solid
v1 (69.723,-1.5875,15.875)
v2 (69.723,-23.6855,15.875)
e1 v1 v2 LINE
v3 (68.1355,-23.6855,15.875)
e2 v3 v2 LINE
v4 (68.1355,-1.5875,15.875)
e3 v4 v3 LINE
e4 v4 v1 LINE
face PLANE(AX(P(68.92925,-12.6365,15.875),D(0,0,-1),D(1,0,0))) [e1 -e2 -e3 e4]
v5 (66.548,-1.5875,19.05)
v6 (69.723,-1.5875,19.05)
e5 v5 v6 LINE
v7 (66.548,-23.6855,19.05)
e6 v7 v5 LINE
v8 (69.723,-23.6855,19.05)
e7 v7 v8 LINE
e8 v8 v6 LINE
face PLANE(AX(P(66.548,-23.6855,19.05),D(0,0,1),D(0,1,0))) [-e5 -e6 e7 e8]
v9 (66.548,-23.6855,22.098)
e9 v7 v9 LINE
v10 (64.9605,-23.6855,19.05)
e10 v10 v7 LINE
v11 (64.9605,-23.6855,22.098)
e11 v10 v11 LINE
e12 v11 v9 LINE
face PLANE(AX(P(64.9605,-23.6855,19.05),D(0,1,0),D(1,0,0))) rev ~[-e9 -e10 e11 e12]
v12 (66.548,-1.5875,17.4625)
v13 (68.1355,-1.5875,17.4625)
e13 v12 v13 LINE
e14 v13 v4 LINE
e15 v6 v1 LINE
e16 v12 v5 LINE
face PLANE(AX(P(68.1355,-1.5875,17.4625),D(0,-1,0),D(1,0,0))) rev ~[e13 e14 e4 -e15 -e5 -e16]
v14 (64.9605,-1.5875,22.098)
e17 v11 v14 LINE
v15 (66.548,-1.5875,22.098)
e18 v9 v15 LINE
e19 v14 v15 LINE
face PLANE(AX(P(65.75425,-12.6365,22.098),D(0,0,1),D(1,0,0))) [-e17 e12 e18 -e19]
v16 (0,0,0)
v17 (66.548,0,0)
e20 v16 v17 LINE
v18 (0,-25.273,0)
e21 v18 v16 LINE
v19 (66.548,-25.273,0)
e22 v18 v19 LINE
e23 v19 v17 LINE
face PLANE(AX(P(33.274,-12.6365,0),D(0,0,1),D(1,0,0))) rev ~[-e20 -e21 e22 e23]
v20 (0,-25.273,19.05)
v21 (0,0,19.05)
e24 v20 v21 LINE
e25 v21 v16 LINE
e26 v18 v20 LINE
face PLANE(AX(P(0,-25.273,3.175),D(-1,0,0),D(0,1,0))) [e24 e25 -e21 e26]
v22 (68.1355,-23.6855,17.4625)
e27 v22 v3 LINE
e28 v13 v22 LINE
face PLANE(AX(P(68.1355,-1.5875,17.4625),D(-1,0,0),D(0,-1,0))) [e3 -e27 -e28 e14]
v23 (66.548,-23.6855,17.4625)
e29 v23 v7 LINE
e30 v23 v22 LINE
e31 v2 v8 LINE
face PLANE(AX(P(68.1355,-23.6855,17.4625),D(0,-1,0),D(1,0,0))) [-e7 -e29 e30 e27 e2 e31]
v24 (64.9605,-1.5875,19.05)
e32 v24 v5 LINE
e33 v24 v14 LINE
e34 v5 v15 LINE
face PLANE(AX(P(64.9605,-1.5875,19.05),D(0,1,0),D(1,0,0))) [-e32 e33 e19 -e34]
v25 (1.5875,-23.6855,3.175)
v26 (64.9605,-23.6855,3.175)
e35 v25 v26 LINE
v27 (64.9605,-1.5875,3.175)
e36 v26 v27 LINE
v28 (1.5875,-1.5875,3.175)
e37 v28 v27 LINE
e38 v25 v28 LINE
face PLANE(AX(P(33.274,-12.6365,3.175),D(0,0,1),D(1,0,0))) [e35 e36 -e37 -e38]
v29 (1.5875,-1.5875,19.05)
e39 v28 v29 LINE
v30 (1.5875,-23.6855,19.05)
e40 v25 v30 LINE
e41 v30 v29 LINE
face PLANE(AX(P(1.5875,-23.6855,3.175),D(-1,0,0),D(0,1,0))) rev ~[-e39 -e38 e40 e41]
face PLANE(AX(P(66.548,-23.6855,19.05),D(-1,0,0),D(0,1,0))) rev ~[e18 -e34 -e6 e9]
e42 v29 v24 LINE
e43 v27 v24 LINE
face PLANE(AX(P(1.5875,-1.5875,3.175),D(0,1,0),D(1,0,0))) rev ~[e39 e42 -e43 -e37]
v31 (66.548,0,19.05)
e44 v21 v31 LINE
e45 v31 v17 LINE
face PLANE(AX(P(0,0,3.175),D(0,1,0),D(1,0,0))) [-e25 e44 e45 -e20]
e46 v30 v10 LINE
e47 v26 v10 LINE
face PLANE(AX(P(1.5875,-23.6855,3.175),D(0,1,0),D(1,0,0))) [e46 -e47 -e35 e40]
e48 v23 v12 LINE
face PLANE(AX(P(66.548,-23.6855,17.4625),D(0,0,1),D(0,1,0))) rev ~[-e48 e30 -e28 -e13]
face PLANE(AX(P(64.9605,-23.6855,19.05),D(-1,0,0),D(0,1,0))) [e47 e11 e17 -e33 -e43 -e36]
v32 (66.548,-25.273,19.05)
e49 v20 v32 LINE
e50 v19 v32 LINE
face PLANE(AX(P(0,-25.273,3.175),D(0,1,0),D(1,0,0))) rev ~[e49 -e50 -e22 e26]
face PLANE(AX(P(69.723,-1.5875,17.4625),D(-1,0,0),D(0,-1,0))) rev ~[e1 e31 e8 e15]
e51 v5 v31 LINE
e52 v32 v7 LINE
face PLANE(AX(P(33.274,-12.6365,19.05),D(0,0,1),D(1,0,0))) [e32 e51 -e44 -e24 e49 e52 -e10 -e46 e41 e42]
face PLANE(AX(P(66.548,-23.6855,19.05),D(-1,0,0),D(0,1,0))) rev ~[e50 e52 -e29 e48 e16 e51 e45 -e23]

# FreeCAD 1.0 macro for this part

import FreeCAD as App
import Part
import Sketcher
Q = App.Units.Quantity

doc = App.newDocument("Part")
body = doc.addObject("PartDesign::Body", "Body")

sketch1 = doc.addObject("Sketcher::SketchObject", "Sketch")
body.addObject(sketch1)
sketch1.AttachmentSupport = (doc.XY_Plane, [""])
sketch1.MapMode = "FlatFace"
sketch1.addGeometry([
    Part.LineSegment(App.Vector(0, 0, 0), App.Vector(0, -25, 0)),
    Part.LineSegment(App.Vector(0, -25, 0), App.Vector(67, -25, 0)),
    Part.LineSegment(App.Vector(67, -25, 0), App.Vector(67, 0, 0)),
    Part.LineSegment(App.Vector(67, 0, 0), App.Vector(0, 0, 0)),
], False)
sketch1.addConstraint([
    Sketcher.Constraint("Coincident", 0, 2, 1, 1),
    Sketcher.Constraint("Coincident", 1, 2, 2, 1),
    Sketcher.Constraint("Coincident", 2, 2, 3, 1),
    Sketcher.Constraint("Coincident", 3, 2, 0, 1),
    Sketcher.Constraint("Vertical", 0),
    Sketcher.Constraint("Horizontal", 1),
    Sketcher.Constraint("Vertical", 2),
    Sketcher.Constraint("Horizontal", 3),
    Sketcher.Constraint("Coincident", 3, 2, -1, 1),
    Sketcher.Constraint("DistanceX", 1, 1, 1, 2, Q("2.62 in")),
    Sketcher.Constraint("DistanceY", 0, 2, 0, 1, Q("0.995 in")),
])
pad1 = doc.addObject("PartDesign::Pad", "Pad")
body.addObject(pad1)
pad1.Profile = sketch1
pad1.Length = Q("0.125 in")

sketch2 = doc.addObject("Sketcher::SketchObject", "Sketch001")
body.addObject(sketch2)
sketch2.AttachmentSupport = (doc.XY_Plane, [""])
sketch2.MapMode = "FlatFace"
sketch2.AttachmentOffset = App.Placement(App.Vector(0, 0, 0.125 * 25.4), App.Rotation())
sketch2.addGeometry([
    Part.LineSegment(App.Vector(0, 0, 0), App.Vector(0, -25, 0)),
    Part.LineSegment(App.Vector(0, -25, 0), App.Vector(67, -25, 0)),
    Part.LineSegment(App.Vector(67, -25, 0), App.Vector(67, 0, 0)),
    Part.LineSegment(App.Vector(67, 0, 0), App.Vector(0, 0, 0)),
    Part.LineSegment(App.Vector(65, -24, 0), App.Vector(2, -24, 0)),
    Part.LineSegment(App.Vector(2, -24, 0), App.Vector(2, -2, 0)),
    Part.LineSegment(App.Vector(2, -2, 0), App.Vector(65, -2, 0)),
    Part.LineSegment(App.Vector(65, -2, 0), App.Vector(65, -24, 0)),
], False)
sketch2.addConstraint([
    Sketcher.Constraint("Coincident", 0, 2, 1, 1),
    Sketcher.Constraint("Coincident", 1, 2, 2, 1),
    Sketcher.Constraint("Coincident", 2, 2, 3, 1),
    Sketcher.Constraint("Coincident", 3, 2, 0, 1),
    Sketcher.Constraint("Coincident", 4, 2, 5, 1),
    Sketcher.Constraint("Coincident", 5, 2, 6, 1),
    Sketcher.Constraint("Coincident", 6, 2, 7, 1),
    Sketcher.Constraint("Coincident", 7, 2, 4, 1),
    Sketcher.Constraint("Vertical", 0),
    Sketcher.Constraint("Horizontal", 1),
    Sketcher.Constraint("Vertical", 2),
    Sketcher.Constraint("Horizontal", 3),
    Sketcher.Constraint("Horizontal", 4),
    Sketcher.Constraint("Vertical", 5),
    Sketcher.Constraint("Horizontal", 6),
    Sketcher.Constraint("Vertical", 7),
    Sketcher.Constraint("Coincident", 3, 2, -1, 1),
    Sketcher.Constraint("DistanceX", 1, 1, 1, 2, Q("2.62 in")),
    Sketcher.Constraint("DistanceY", 5, 1, 5, 2, Q("0.87 in")),
    Sketcher.Constraint("DistanceX", 4, 2, 4, 1, Q("2.495 in")),
    Sketcher.Constraint("DistanceY", 0, 2, 0, 1, Q("0.995 in")),
    Sketcher.Constraint("DistanceX", -1, 1, 4, 2, Q("0.0625 in")),
    Sketcher.Constraint("DistanceY", 5, 2, -1, 1, Q("0.0625 in")),
])
pad2 = doc.addObject("PartDesign::Pad", "Pad001")
body.addObject(pad2)
pad2.Profile = sketch2
pad2.Length = Q("0.625 in")

sketch3 = doc.addObject("Sketcher::SketchObject", "Sketch002")
body.addObject(sketch3)
sketch3.AttachmentSupport = (doc.XY_Plane, [""])
sketch3.MapMode = "FlatFace"
sketch3.AttachmentOffset = App.Placement(App.Vector(0, 0, 0.75 * 25.4), App.Rotation())
sketch3.addGeometry([
    Part.LineSegment(App.Vector(65, -1.6, 0), App.Vector(65, -23.7, 0)),
    Part.LineSegment(App.Vector(65, -23.7, 0), App.Vector(66.5, -23.7, 0)),
    Part.LineSegment(App.Vector(66.5, -23.7, 0), App.Vector(66.5, -1.6, 0)),
    Part.LineSegment(App.Vector(66.5, -1.6, 0), App.Vector(65, -1.6, 0)),
], False)
sketch3.addConstraint([
    Sketcher.Constraint("Coincident", 0, 2, 1, 1),
    Sketcher.Constraint("Coincident", 1, 2, 2, 1),
    Sketcher.Constraint("Coincident", 2, 2, 3, 1),
    Sketcher.Constraint("Coincident", 3, 2, 0, 1),
    Sketcher.Constraint("Vertical", 0),
    Sketcher.Constraint("Horizontal", 1),
    Sketcher.Constraint("Vertical", 2),
    Sketcher.Constraint("Horizontal", 3),
    Sketcher.Constraint("DistanceY", 0, 2, 0, 1, Q("0.87 in")),
    Sketcher.Constraint("DistanceX", 1, 1, 1, 2, Q("0.0625 in")),
    Sketcher.Constraint("DistanceX", -1, 1, 1, 2, Q("2.62 in")),
    Sketcher.Constraint("DistanceY", 2, 2, -1, 1, Q("0.0625 in")),
])
pad3 = doc.addObject("PartDesign::Pad", "Pad002")
body.addObject(pad3)
pad3.Profile = sketch3
pad3.Length = Q("0.12 in")

sketch4 = doc.addObject("Sketcher::SketchObject", "Sketch003")
body.addObject(sketch4)
sketch4.AttachmentSupport = (doc.YZ_Plane, [""])
sketch4.MapMode = "FlatFace"
sketch4.AttachmentOffset = App.Placement(App.Vector(0, 0, 2.62 * 25.4), App.Rotation())
sketch4.addGeometry([
    Part.LineSegment(App.Vector(-23.7, 19.1, 0), App.Vector(-23.7, 17.5, 0)),
    Part.LineSegment(App.Vector(-23.7, 17.5, 0), App.Vector(-1.6, 17.5, 0)),
    Part.LineSegment(App.Vector(-1.6, 17.5, 0), App.Vector(-1.6, 19.1, 0)),
    Part.LineSegment(App.Vector(-1.6, 19.1, 0), App.Vector(-23.7, 19.1, 0)),
], False)
sketch4.addConstraint([
    Sketcher.Constraint("Coincident", 0, 2, 1, 1),
    Sketcher.Constraint("Coincident", 1, 2, 2, 1),
    Sketcher.Constraint("Coincident", 2, 2, 3, 1),
    Sketcher.Constraint("Coincident", 3, 2, 0, 1),
    Sketcher.Constraint("Vertical", 0),
    Sketcher.Constraint("Horizontal", 1),
    Sketcher.Constraint("Vertical", 2),
    Sketcher.Constraint("Horizontal", 3),
    Sketcher.Constraint("DistanceX", 1, 1, 1, 2, Q("0.87 in")),
    Sketcher.Constraint("DistanceY", 0, 2, 0, 1, Q("0.0625 in")),
    Sketcher.Constraint("DistanceY", -1, 1, 2, 2, Q("0.75 in")),
    Sketcher.Constraint("DistanceX", 1, 2, -1, 1, Q("0.0625 in")),
])
pad4 = doc.addObject("PartDesign::Pad", "Pad003")
body.addObject(pad4)
pad4.Profile = sketch4
pad4.Length = Q("0.125 in")

sketch5 = doc.addObject("Sketcher::SketchObject", "Sketch004")
body.addObject(sketch5)
sketch5.AttachmentSupport = (doc.XY_Plane, [""])
sketch5.MapMode = "FlatFace"
sketch5.AttachmentOffset = App.Placement(App.Vector(0, 0, 0.6875 * 25.4), App.Rotation())
sketch5.addGeometry([
    Part.LineSegment(App.Vector(68.1, -23.7, 0), App.Vector(68.1, -1.6, 0)),
    Part.LineSegment(App.Vector(68.1, -1.6, 0), App.Vector(69.7, -1.6, 0)),
    Part.LineSegment(App.Vector(69.7, -1.6, 0), App.Vector(69.7, -23.7, 0)),
    Part.LineSegment(App.Vector(69.7, -23.7, 0), App.Vector(68.1, -23.7, 0)),
], False)
sketch5.addConstraint([
    Sketcher.Constraint("Coincident", 0, 2, 1, 1),
    Sketcher.Constraint("Coincident", 1, 2, 2, 1),
    Sketcher.Constraint("Coincident", 2, 2, 3, 1),
    Sketcher.Constraint("Coincident", 3, 2, 0, 1),
    Sketcher.Constraint("Vertical", 0),
    Sketcher.Constraint("Horizontal", 1),
    Sketcher.Constraint("Vertical", 2),
    Sketcher.Constraint("Horizontal", 3),
    Sketcher.Constraint("DistanceY", 0, 1, 0, 2, Q("0.87 in")),
    Sketcher.Constraint("DistanceX", 1, 1, 1, 2, Q("0.0625 in")),
    Sketcher.Constraint("DistanceY", 0, 2, -1, 1, Q("0.0625 in")),
    Sketcher.Constraint("DistanceX", -1, 1, 1, 2, Q("2.745 in")),
])
pad5 = doc.addObject("PartDesign::Pad", "Pad004")
body.addObject(pad5)
pad5.Profile = sketch5
pad5.Length = Q("0.0625 in")
pad5.Reversed = True

doc.recompute()
